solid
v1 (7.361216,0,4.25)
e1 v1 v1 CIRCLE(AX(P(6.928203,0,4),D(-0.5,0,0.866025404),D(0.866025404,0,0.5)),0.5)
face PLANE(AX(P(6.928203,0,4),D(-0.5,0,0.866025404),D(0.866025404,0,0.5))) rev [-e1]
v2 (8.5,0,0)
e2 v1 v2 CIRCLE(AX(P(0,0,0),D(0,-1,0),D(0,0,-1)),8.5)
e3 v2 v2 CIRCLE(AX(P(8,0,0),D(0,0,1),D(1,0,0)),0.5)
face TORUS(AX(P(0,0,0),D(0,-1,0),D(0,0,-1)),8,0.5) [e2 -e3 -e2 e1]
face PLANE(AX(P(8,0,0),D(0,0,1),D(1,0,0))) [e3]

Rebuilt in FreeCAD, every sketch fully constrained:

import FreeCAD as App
import Part
import Sketcher
from FreeCAD import Vector

doc = App.newDocument("Part")
params = doc.addObject("Spreadsheet::Sheet", "Params")
for row, (alias, value) in enumerate([
    ("sketch1_diameter", "1 mm"),
    ("revolution_angle", "330 deg"),
], start=1):
    params.set(f"A{row}", alias)
    params.set(f"B{row}", "=" + value)
    params.setAlias(f"B{row}", alias)

body = doc.addObject("PartDesign::Body", "Body")

# Sketch on XY plane
sketch1 = doc.addObject("Sketcher::SketchObject", "Sketch")
body.addObject(sketch1)
sketch1.AttachmentSupport = (doc.XY_Plane, [""])
sketch1.MapMode = "FlatFace"
sketch1.addGeometry(Part.Circle(Vector(8, 0, 0), Vector(0, 0, 1), 0.5), False)
sketch1.addConstraint([
    Sketcher.Constraint("PointOnObject", 0, 3, -1),
    Sketcher.Constraint("Diameter", 0, 1.0),
    Sketcher.Constraint("DistanceX", -1, 1, 0, 3, 8.0),
])
sketch1.setExpression("Constraints[1]", "Params.sketch1_diameter")
revolution = doc.addObject("PartDesign::Revolution", "Revolution")
body.addObject(revolution)
revolution.Profile = sketch1
revolution.ReferenceAxis = (sketch1, ["V_Axis"])
revolution.setExpression("Angle", "Params.revolution_angle")

doc.recompute()
